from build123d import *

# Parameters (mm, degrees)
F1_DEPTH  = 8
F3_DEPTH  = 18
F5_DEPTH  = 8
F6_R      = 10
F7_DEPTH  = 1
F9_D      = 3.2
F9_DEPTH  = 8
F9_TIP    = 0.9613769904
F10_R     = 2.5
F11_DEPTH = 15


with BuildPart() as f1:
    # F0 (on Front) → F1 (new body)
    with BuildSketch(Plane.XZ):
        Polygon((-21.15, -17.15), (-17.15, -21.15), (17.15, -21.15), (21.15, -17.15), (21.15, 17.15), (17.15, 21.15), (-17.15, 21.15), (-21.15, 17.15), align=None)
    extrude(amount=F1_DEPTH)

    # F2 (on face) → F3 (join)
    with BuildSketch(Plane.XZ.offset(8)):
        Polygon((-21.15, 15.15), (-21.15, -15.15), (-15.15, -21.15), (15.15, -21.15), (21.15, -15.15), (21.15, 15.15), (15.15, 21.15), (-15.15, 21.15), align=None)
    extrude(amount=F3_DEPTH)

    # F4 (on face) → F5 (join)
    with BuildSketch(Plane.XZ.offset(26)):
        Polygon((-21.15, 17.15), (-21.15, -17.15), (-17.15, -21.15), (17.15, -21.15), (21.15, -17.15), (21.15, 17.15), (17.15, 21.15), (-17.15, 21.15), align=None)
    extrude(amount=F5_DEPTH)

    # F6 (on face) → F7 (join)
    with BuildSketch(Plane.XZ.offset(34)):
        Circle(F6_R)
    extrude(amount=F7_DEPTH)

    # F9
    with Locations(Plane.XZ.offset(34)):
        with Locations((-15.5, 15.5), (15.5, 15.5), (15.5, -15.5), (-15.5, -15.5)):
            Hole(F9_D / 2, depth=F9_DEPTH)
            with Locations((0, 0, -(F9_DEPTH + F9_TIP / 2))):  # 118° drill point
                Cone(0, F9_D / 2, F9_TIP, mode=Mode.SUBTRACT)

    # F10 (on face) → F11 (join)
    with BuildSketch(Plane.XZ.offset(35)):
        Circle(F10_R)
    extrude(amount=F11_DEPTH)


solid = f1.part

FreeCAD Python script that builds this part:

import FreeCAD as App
import Part
import Sketcher

V = App.Vector

doc = App.newDocument("Part")
body = doc.addObject("PartDesign::Body", "Body")

sketch1 = doc.addObject("Sketcher::SketchObject", "Sketch")
body.addObject(sketch1)
sketch1.AttachmentSupport = (doc.XZ_Plane, [""])
sketch1.MapMode = "FlatFace"
sketch1.addGeometry([
    Part.LineSegment(V(-21, -17, 0), V(-17, -21, 0)),
    Part.LineSegment(V(-17, -21, 0), V(17, -21, 0)),
    Part.LineSegment(V(17, -21, 0), V(21, -17, 0)),
    Part.LineSegment(V(21, -17, 0), V(21, 17, 0)),
    Part.LineSegment(V(21, 17, 0), V(17, 21, 0)),
    Part.LineSegment(V(17, 21, 0), V(-17, 21, 0)),
    Part.LineSegment(V(-17, 21, 0), V(-21, 17, 0)),
    Part.LineSegment(V(-21, 17, 0), V(-21, -17, 0)),
], False)
sketch1.addConstraint([
    Sketcher.Constraint("Coincident", 0, 2, 1, 1),
    Sketcher.Constraint("Coincident", 1, 2, 2, 1),
    Sketcher.Constraint("Coincident", 2, 2, 3, 1),
    Sketcher.Constraint("Coincident", 3, 2, 4, 1),
    Sketcher.Constraint("Coincident", 4, 2, 5, 1),
    Sketcher.Constraint("Coincident", 5, 2, 6, 1),
    Sketcher.Constraint("Coincident", 6, 2, 7, 1),
    Sketcher.Constraint("Coincident", 7, 2, 0, 1),
    Sketcher.Constraint("Horizontal", 1),
    Sketcher.Constraint("Vertical", 3),
    Sketcher.Constraint("Horizontal", 5),
    Sketcher.Constraint("Vertical", 7),
    Sketcher.Constraint("Symmetric", 0, 2, 4, 2, -1, 1),
    Sketcher.Constraint("Symmetric", 2, 2, 6, 2, -1, 1),
    Sketcher.Constraint("Perpendicular", 0, 2),
    Sketcher.Constraint("Perpendicular", 2, 4),
    Sketcher.Constraint("Perpendicular", 4, 6),
    Sketcher.Constraint("Horizontal", 3, 2, 6, 2),
    Sketcher.Constraint("Vertical", 1, 2, 4, 2),
    Sketcher.Constraint("Equal", 5, 3),
    Sketcher.Constraint("DistanceX", 1, 1, 1, 2, 34.3),
    Sketcher.Constraint("DistanceX", 1, 2, 2, 2, 4.0),
])
pad1 = doc.addObject("PartDesign::Pad", "Pad")
body.addObject(pad1)
pad1.Profile = sketch1
pad1.Length = 8

sketch2 = doc.addObject("Sketcher::SketchObject", "Sketch001")
body.addObject(sketch2)
sketch2.AttachmentSupport = (doc.XZ_Plane, [""])
sketch2.MapMode = "FlatFace"
sketch2.AttachmentOffset = App.Placement(V(0, 0, 8), App.Rotation())
sketch2.addGeometry([
    Part.LineSegment(V(-21, 15, 0), V(-21, -15, 0)),
    Part.LineSegment(V(-21, -15, 0), V(-15, -21, 0)),
    Part.LineSegment(V(-15, -21, 0), V(15, -21, 0)),
    Part.LineSegment(V(15, -21, 0), V(21, -15, 0)),
    Part.LineSegment(V(21, -15, 0), V(21, 15, 0)),
    Part.LineSegment(V(21, 15, 0), V(15, 21, 0)),
    Part.LineSegment(V(15, 21, 0), V(-15, 21, 0)),
    Part.LineSegment(V(-15, 21, 0), V(-21, 15, 0)),
], False)
sketch2.addConstraint([
    Sketcher.Constraint("Coincident", 0, 2, 1, 1),
    Sketcher.Constraint("Coincident", 1, 2, 2, 1),
    Sketcher.Constraint("Coincident", 2, 2, 3, 1),
    Sketcher.Constraint("Coincident", 3, 2, 4, 1),
    Sketcher.Constraint("Coincident", 4, 2, 5, 1),
    Sketcher.Constraint("Coincident", 5, 2, 6, 1),
    Sketcher.Constraint("Coincident", 6, 2, 7, 1),
    Sketcher.Constraint("Coincident", 7, 2, 0, 1),
    Sketcher.Constraint("Vertical", 0),
    Sketcher.Constraint("Horizontal", 2),
    Sketcher.Constraint("Vertical", 4),
    Sketcher.Constraint("Horizontal", 6),
    Sketcher.Constraint("Symmetric", 0, 2, 4, 2, -1, 1),
    Sketcher.Constraint("Symmetric", 1, 2, 5, 2, -1, 1),
    Sketcher.Constraint("Perpendicular", 1, 3),
    Sketcher.Constraint("Perpendicular", 5, 7),
    Sketcher.Constraint("Horizontal", 0, 2, 3, 2),
    Sketcher.Constraint("Horizontal", 4, 2, 7, 2),
    Sketcher.Constraint("Vertical", 2, 2, 5, 2),
    Sketcher.Constraint("Equal", 6, 0),
    Sketcher.Constraint("DistanceX", 2, 1, 2, 2, 30.3),
    Sketcher.Constraint("DistanceX", 0, 2, 1, 2, 6.0),
])
pad2 = doc.addObject("PartDesign::Pad", "Pad001")
body.addObject(pad2)
pad2.Profile = sketch2
pad2.Length = 18

sketch3 = doc.addObject("Sketcher::SketchObject", "Sketch002")
body.addObject(sketch3)
sketch3.AttachmentSupport = (doc.XZ_Plane, [""])
sketch3.MapMode = "FlatFace"
sketch3.AttachmentOffset = App.Placement(V(0, 0, 26), App.Rotation())
sketch3.addGeometry([
    Part.LineSegment(V(-21, 17, 0), V(-21, -17, 0)),
    Part.LineSegment(V(-21, -17, 0), V(-17, -21, 0)),
    Part.LineSegment(V(-17, -21, 0), V(17, -21, 0)),
    Part.LineSegment(V(17, -21, 0), V(21, -17, 0)),
    Part.LineSegment(V(21, -17, 0), V(21, 17, 0)),
    Part.LineSegment(V(21, 17, 0), V(17, 21, 0)),
    Part.LineSegment(V(17, 21, 0), V(-17, 21, 0)),
    Part.LineSegment(V(-17, 21, 0), V(-21, 17, 0)),
], False)
sketch3.addConstraint([
    Sketcher.Constraint("Coincident", 0, 2, 1, 1),
    Sketcher.Constraint("Coincident", 1, 2, 2, 1),
    Sketcher.Constraint("Coincident", 2, 2, 3, 1),
    Sketcher.Constraint("Coincident", 3, 2, 4, 1),
    Sketcher.Constraint("Coincident", 4, 2, 5, 1),
    Sketcher.Constraint("Coincident", 5, 2, 6, 1),
    Sketcher.Constraint("Coincident", 6, 2, 7, 1),
    Sketcher.Constraint("Coincident", 7, 2, 0, 1),
    Sketcher.Constraint("Vertical", 0),
    Sketcher.Constraint("Horizontal", 2),
    Sketcher.Constraint("Vertical", 4),
    Sketcher.Constraint("Horizontal", 6),
    Sketcher.Constraint("Symmetric", 0, 2, 4, 2, -1, 1),
    Sketcher.Constraint("Symmetric", 1, 2, 5, 2, -1, 1),
    Sketcher.Constraint("Perpendicular", 1, 3),
    Sketcher.Constraint("Perpendicular", 5, 7),
    Sketcher.Constraint("Horizontal", 0, 2, 3, 2),
    Sketcher.Constraint("Horizontal", 4, 2, 7, 2),
    Sketcher.Constraint("Vertical", 2, 2, 5, 2),
    Sketcher.Constraint("Equal", 6, 0),
    Sketcher.Constraint("DistanceX", 2, 1, 2, 2, 34.3),
    Sketcher.Constraint("DistanceX", 0, 2, 1, 2, 4.0),
])
pad3 = doc.addObject("PartDesign::Pad", "Pad002")
body.addObject(pad3)
pad3.Profile = sketch3
pad3.Length = 8

sketch4 = doc.addObject("Sketcher::SketchObject", "Sketch003")
body.addObject(sketch4)
sketch4.AttachmentSupport = (doc.XZ_Plane, [""])
sketch4.MapMode = "FlatFace"
sketch4.AttachmentOffset = App.Placement(V(0, 0, 34), App.Rotation())
sketch4.addGeometry(Part.Circle(V(0, 0, 0), V(0, 0, 1), 10), False)
sketch4.addConstraint([
    Sketcher.Constraint("Coincident", 0, 3, -1, 1),
    Sketcher.Constraint("Diameter", 0, 20.0),
])
pad4 = doc.addObject("PartDesign::Pad", "Pad003")
body.addObject(pad4)
pad4.Profile = sketch4
pad4.Length = 1

sketch5 = doc.addObject("Sketcher::SketchObject", "Sketch004")
body.addObject(sketch5)
sketch5.AttachmentSupport = (doc.XZ_Plane, [""])
sketch5.MapMode = "FlatFace"
sketch5.AttachmentOffset = App.Placement(V(0, 0, 34), App.Rotation())
sketch5.addGeometry([
    Part.Circle(V(-15.5, 15.5, 0), V(0, 0, 1), 1.6),
    Part.Circle(V(15.5, 15.5, 0), V(0, 0, 1), 1.6),
    Part.Circle(V(15.5, -15.5, 0), V(0, 0, 1), 1.6),
    Part.Circle(V(-15.5, -15.5, 0), V(0, 0, 1), 1.6),
], False)
sketch5.addConstraint([
    Sketcher.Constraint("Equal", 0, 1),
    Sketcher.Constraint("Equal", 1, 2),
    Sketcher.Constraint("Equal", 2, 3),
    Sketcher.Constraint("Symmetric", 0, 3, 2, 3, -1, 1),
    Sketcher.Constraint("Symmetric", 1, 3, 3, 3, -1, 1),
    Sketcher.Constraint("Symmetric", 0, 3, 1, 3, -2),
    Sketcher.Constraint("Diameter", 0, 3.2),
    Sketcher.Constraint("DistanceX", 0, 3, 1, 3, 31.0),
    Sketcher.Constraint("DistanceY", 2, 3, 1, 3, 31.0),
])
doc.recompute()
hole = doc.addObject("PartDesign::Hole", "Hole")
body.addObject(hole)
hole.Profile = sketch5
hole.ThreadType = "None"
hole.Diameter = 3.2
hole.DepthType = "Dimension"
hole.Depth = 8
hole.DrillPoint = "Angled"
hole.DrillPointAngle = 118

sketch6 = doc.addObject("Sketcher::SketchObject", "Sketch005")
body.addObject(sketch6)
sketch6.AttachmentSupport = (doc.XZ_Plane, [""])
sketch6.MapMode = "FlatFace"
sketch6.AttachmentOffset = App.Placement(V(0, 0, 35), App.Rotation())
sketch6.addGeometry(Part.Circle(V(0, 0, 0), V(0, 0, 1), 2.5), False)
sketch6.addConstraint([
    Sketcher.Constraint("Coincident", 0, 3, -1, 1),
    Sketcher.Constraint("Diameter", 0, 5.0),
])
pad5 = doc.addObject("PartDesign::Pad", "Pad004")
body.addObject(pad5)
pad5.Profile = sketch6
pad5.Length = 15

doc.recompute()
